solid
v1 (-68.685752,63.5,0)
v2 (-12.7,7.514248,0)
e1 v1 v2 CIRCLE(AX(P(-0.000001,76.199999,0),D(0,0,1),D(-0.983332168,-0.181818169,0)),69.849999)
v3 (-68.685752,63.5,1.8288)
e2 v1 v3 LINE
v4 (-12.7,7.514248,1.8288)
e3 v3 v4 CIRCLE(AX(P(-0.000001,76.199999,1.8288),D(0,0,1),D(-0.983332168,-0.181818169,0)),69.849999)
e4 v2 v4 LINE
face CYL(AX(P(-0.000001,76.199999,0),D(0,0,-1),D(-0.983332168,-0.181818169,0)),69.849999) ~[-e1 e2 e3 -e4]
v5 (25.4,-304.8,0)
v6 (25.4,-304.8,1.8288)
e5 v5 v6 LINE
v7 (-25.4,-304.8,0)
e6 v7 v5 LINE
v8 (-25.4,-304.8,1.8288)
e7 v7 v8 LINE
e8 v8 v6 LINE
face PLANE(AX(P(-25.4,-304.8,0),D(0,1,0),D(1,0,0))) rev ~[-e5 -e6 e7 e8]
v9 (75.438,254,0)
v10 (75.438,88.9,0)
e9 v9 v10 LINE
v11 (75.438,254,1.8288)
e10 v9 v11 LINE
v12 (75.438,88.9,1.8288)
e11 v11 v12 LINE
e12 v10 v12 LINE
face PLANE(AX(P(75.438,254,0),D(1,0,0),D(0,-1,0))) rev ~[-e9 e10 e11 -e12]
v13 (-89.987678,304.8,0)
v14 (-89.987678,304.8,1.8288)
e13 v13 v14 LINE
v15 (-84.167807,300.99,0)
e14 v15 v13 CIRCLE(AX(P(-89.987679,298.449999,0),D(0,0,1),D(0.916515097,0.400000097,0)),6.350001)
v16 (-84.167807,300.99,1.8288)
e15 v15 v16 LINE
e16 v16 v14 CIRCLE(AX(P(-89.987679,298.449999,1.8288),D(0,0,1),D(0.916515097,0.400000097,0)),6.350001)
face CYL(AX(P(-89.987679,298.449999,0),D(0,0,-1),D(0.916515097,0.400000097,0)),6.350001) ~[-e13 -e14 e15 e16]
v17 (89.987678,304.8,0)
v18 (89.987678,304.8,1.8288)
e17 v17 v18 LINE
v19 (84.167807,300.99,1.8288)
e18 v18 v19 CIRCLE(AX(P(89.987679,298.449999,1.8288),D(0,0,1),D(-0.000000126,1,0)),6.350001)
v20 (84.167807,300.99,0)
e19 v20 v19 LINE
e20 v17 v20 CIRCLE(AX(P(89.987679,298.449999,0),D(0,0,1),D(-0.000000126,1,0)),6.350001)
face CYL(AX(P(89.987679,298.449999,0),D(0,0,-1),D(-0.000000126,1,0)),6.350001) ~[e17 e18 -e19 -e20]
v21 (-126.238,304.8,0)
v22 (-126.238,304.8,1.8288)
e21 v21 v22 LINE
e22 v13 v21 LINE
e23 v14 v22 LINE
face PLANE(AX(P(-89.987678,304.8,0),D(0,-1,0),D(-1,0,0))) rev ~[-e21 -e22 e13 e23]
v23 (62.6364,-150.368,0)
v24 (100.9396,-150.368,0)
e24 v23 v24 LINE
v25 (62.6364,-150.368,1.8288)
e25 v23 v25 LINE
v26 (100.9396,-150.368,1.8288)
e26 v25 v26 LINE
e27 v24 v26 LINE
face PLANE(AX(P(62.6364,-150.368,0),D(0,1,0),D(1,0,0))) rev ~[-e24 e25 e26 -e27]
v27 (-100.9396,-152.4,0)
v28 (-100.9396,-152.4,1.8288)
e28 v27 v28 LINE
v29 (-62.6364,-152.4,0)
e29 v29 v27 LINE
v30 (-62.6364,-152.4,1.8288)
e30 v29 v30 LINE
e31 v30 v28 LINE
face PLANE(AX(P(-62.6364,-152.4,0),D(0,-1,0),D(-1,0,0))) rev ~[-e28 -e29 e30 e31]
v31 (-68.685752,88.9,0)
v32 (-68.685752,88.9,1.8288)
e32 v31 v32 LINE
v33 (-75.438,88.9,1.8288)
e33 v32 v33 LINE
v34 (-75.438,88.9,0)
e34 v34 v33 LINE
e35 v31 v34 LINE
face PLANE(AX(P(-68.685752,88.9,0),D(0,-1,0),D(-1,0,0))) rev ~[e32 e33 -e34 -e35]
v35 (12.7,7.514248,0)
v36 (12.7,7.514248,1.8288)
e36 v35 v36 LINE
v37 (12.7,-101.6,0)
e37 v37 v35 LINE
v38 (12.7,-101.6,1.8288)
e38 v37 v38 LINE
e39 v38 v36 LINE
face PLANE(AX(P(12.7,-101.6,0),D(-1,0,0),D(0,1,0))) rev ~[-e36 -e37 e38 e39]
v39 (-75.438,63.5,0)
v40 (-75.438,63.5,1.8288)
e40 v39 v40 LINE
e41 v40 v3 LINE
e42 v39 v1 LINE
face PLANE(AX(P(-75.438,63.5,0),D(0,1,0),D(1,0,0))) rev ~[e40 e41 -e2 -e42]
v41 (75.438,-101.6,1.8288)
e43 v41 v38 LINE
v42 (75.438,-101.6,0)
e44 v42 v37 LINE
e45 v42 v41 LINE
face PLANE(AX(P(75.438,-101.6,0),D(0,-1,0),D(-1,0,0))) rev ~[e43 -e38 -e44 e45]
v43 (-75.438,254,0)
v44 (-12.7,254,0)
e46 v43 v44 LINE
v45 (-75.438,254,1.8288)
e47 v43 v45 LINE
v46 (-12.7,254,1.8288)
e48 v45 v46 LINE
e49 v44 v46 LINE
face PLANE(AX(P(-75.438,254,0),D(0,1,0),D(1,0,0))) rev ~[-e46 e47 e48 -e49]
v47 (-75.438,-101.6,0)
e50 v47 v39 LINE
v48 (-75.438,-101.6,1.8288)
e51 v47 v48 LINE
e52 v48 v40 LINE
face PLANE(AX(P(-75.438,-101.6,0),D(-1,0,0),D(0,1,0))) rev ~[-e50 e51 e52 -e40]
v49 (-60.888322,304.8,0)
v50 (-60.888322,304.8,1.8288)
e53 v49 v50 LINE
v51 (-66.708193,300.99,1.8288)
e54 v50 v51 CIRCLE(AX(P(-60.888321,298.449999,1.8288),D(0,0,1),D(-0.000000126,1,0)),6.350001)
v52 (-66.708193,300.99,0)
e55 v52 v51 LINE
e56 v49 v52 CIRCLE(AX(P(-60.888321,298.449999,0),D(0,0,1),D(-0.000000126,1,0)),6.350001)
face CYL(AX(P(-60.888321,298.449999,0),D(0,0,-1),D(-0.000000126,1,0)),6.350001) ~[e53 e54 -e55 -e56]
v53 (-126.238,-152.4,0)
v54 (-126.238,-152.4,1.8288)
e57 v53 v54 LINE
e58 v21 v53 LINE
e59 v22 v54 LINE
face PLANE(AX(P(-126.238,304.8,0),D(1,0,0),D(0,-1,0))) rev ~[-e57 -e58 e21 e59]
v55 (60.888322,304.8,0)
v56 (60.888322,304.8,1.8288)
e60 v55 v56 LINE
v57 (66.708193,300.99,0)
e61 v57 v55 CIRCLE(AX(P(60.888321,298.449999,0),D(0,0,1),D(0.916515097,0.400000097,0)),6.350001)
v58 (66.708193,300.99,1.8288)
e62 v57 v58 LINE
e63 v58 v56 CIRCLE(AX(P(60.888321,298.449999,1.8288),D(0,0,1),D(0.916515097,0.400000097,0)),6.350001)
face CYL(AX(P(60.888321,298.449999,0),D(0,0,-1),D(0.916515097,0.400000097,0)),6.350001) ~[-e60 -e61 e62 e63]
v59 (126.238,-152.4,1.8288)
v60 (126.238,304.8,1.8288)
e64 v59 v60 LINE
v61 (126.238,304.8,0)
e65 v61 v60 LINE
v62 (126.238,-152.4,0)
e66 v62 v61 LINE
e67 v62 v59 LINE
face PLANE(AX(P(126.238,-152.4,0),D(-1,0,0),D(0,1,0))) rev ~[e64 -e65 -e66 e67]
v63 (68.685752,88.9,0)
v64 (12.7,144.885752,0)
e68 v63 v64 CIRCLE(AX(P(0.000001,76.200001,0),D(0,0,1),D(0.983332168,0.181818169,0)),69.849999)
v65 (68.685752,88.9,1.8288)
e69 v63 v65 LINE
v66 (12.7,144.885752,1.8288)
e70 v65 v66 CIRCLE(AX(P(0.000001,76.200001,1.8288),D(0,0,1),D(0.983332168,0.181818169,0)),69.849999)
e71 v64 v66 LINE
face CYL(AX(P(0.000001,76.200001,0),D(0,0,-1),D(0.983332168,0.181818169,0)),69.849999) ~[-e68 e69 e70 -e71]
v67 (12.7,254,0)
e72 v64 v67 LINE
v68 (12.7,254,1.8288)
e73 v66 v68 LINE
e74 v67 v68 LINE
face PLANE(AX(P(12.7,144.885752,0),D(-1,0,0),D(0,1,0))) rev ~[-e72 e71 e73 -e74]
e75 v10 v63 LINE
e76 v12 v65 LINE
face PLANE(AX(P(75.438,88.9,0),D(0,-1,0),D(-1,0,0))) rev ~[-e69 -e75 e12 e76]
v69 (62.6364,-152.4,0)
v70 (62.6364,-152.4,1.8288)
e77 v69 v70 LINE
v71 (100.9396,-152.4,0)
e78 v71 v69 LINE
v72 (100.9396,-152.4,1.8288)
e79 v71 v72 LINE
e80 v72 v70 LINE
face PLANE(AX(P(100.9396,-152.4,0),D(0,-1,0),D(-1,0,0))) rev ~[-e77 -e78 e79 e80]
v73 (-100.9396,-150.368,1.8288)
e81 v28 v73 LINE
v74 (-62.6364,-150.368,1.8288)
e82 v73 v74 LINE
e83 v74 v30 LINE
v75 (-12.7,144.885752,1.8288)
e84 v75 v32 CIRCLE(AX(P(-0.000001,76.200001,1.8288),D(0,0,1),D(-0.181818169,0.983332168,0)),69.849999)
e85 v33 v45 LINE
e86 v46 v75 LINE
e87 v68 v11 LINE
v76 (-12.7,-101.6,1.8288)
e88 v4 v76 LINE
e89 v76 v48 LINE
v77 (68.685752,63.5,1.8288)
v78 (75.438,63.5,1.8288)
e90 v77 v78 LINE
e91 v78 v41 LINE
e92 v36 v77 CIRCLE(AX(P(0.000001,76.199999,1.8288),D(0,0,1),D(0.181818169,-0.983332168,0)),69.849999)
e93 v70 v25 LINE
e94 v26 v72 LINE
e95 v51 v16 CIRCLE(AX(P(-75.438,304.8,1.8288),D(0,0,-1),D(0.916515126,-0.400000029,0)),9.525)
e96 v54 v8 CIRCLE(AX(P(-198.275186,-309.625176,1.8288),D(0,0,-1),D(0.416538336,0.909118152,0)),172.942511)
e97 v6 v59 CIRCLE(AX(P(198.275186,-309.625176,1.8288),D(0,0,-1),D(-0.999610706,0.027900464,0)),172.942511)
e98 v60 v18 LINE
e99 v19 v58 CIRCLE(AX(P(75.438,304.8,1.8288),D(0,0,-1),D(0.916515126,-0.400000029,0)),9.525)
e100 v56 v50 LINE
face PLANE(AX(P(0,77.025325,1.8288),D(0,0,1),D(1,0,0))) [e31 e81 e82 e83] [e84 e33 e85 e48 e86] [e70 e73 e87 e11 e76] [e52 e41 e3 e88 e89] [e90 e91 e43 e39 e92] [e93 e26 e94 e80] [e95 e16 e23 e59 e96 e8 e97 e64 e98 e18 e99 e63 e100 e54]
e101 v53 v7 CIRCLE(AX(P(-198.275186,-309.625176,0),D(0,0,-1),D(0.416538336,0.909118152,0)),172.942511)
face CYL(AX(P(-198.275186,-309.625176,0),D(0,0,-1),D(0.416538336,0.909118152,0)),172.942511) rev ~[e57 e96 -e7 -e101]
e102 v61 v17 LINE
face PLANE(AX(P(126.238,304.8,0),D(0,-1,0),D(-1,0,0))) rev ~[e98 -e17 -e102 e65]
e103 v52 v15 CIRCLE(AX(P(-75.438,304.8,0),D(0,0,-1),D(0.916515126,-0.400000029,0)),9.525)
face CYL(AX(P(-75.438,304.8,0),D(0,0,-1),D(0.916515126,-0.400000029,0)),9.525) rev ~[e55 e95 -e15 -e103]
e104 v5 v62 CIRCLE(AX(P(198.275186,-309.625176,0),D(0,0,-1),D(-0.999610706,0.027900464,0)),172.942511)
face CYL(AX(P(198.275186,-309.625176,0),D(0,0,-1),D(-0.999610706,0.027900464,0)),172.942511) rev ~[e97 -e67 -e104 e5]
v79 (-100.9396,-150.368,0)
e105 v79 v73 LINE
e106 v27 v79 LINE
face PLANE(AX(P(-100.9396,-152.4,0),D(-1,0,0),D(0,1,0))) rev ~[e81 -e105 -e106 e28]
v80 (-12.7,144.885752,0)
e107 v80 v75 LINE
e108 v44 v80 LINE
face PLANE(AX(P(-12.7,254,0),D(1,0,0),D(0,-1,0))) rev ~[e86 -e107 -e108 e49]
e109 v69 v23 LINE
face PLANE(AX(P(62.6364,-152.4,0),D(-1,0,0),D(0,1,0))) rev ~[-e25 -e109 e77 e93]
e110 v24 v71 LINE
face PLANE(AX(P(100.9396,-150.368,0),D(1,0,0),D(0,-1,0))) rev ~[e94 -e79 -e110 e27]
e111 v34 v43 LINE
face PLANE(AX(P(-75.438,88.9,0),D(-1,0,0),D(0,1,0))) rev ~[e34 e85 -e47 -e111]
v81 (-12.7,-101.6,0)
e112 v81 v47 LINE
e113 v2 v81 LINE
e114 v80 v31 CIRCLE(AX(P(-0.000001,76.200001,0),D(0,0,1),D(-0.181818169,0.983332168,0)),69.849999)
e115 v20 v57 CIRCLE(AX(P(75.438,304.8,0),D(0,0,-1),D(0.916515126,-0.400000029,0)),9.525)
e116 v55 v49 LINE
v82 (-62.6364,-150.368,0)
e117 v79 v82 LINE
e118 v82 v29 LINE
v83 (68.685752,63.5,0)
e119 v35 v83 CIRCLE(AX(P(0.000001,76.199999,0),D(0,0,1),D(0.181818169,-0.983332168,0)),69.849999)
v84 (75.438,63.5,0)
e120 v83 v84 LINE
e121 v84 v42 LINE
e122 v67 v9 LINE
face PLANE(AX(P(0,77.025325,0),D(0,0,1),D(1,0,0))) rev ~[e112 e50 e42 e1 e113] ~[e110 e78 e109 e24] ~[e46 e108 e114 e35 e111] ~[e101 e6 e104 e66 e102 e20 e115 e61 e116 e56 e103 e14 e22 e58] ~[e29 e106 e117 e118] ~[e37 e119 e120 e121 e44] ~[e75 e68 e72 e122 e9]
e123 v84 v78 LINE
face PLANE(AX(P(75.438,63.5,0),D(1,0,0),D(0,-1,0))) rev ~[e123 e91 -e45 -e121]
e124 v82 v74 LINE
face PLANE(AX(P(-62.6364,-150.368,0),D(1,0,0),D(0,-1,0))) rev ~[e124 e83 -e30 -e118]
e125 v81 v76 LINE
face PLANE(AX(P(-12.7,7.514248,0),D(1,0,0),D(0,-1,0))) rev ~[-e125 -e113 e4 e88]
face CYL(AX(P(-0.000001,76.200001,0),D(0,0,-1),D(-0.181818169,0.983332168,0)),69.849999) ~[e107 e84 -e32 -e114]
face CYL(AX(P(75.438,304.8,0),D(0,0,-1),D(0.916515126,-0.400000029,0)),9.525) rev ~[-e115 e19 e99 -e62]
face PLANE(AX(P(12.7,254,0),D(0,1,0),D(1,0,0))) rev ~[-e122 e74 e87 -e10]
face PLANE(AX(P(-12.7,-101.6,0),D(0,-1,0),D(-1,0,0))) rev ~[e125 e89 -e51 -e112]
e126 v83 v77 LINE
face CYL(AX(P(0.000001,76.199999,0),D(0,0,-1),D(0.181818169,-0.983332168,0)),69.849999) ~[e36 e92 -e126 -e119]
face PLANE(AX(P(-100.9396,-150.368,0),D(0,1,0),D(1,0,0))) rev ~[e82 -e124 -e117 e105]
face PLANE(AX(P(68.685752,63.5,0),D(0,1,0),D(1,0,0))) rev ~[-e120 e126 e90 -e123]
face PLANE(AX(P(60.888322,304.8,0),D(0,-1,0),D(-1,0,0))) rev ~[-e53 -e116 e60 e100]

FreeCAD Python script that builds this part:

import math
import FreeCAD as App
import Part
import Sketcher

V = App.Vector
Q = App.Units.Quantity

doc = App.newDocument("Part")
params = doc.addObject("Spreadsheet::Sheet", "Params")
for row, (alias, value) in enumerate([
    ("sketch1_width", "2 in"),
    ("sketch1_height", "18 in"),
    ("sketch1_radius", "0.25 in"),
    ("sketch1_radius2", "2.75 in"),
    ("sketch1_height2", "6.5 in"),
    ("pad1_length", "0.072 in"),
], start=1):
    params.set(f"A{row}", alias)
    params.set(f"B{row}", "=" + value)
    params.setAlias(f"B{row}", alias)

body = doc.addObject("PartDesign::Body", "Body")

# Sketch on XY plane
sketch1 = body.newObject("Sketcher::SketchObject", "Sketch")
sketch1.AttachmentSupport = (doc.getObject("XY_Plane"), [""])
sketch1.MapMode = "FlatFace"
sketch1.addGeometry([
    Part.LineSegment(V(-90, 304.8, 0), V(-126.2, 304.8, 0)),  # 0
    Part.LineSegment(V(-126.2, 304.8, 0), V(-126.2, -152.4, 0)),  # 1
    Part.ArcOfCircle(Part.Circle(V(-198.3, -309.6, 0), V(0, 0, 1), 172.9), math.radians(2), math.radians(65)),  # 2
    Part.LineSegment(V(-25.4, -304.8, 0), V(25.4, -304.8, 0)),  # 3
    Part.ArcOfCircle(Part.Circle(V(198.3, -309.6, 0), V(0, 0, 1), 172.9), math.radians(115), math.radians(178)),  # 4
    Part.LineSegment(V(126.2, -152.4, 0), V(126.2, 304.8, 0)),  # 5
    Part.LineSegment(V(126.2, 304.8, 0), V(90, 304.8, 0)),  # 6
    Part.ArcOfCircle(Part.Circle(V(90, 298.4, 0), V(0, 0, 1), 6.4), math.radians(90), math.radians(156)),  # 7
    Part.ArcOfCircle(Part.Circle(V(75.4, 304.8, 0), V(0, 0, 1), 9.5), math.radians(-156), math.radians(-24)),  # 8
    Part.ArcOfCircle(Part.Circle(V(60.9, 298.4, 0), V(0, 0, 1), 6.4), math.radians(24), math.radians(90)),  # 9
    Part.LineSegment(V(60.9, 304.8, 0), V(-60.9, 304.8, 0)),  # 10
    Part.ArcOfCircle(Part.Circle(V(-60.9, 298.4, 0), V(0, 0, 1), 6.4), math.radians(90), math.radians(156)),  # 11
    Part.ArcOfCircle(Part.Circle(V(-75.4, 304.8, 0), V(0, 0, 1), 9.5), math.radians(-156), math.radians(-24)),  # 12
    Part.ArcOfCircle(Part.Circle(V(-90, 298.4, 0), V(0, 0, 1), 6.4), math.radians(24), math.radians(90)),  # 13
    Part.LineSegment(V(-100.9, -152.4, 0), V(-100.9, -150.4, 0)),  # 14
    Part.LineSegment(V(-100.9, -150.4, 0), V(-62.6, -150.4, 0)),  # 15
    Part.LineSegment(V(-62.6, -150.4, 0), V(-62.6, -152.4, 0)),  # 16
    Part.LineSegment(V(-62.6, -152.4, 0), V(-100.9, -152.4, 0)),  # 17
    Part.LineSegment(V(62.6, -152.4, 0), V(62.6, -150.4, 0)),  # 18
    Part.LineSegment(V(62.6, -150.4, 0), V(100.9, -150.4, 0)),  # 19
    Part.LineSegment(V(100.9, -150.4, 0), V(100.9, -152.4, 0)),  # 20
    Part.LineSegment(V(100.9, -152.4, 0), V(62.6, -152.4, 0)),  # 21
    Part.LineSegment(V(-12.7, 7.5, 0), V(-12.7, -101.6, 0)),  # 22
    Part.LineSegment(V(-12.7, -101.6, 0), V(-75.4, -101.6, 0)),  # 23
    Part.LineSegment(V(-75.4, -101.6, 0), V(-75.4, 63.5, 0)),  # 24
    Part.LineSegment(V(-75.4, 63.5, 0), V(-68.7, 63.5, 0)),  # 25
    Part.ArcOfCircle(Part.Circle(V(0, 76.2, 0), V(0, 0, 1), 69.8), math.radians(-170), math.radians(-100)),  # 26
    Part.LineSegment(V(75.4, -101.6, 0), V(12.7, -101.6, 0)),  # 27
    Part.LineSegment(V(12.7, -101.6, 0), V(12.7, 7.5, 0)),  # 28
    Part.ArcOfCircle(Part.Circle(V(0, 76.2, 0), V(0, 0, 1), 69.8), math.radians(-80), math.radians(-10)),  # 29
    Part.LineSegment(V(68.7, 63.5, 0), V(75.4, 63.5, 0)),  # 30
    Part.LineSegment(V(75.4, 63.5, 0), V(75.4, -101.6, 0)),  # 31
    Part.LineSegment(V(-68.7, 88.9, 0), V(-75.4, 88.9, 0)),  # 32
    Part.LineSegment(V(-75.4, 88.9, 0), V(-75.4, 254, 0)),  # 33
    Part.LineSegment(V(-75.4, 254, 0), V(-12.7, 254, 0)),  # 34
    Part.LineSegment(V(-12.7, 254, 0), V(-12.7, 144.9, 0)),  # 35
    Part.ArcOfCircle(Part.Circle(V(0, 76.2, 0), V(0, 0, 1), 69.8), math.radians(100), math.radians(170)),  # 36
    Part.LineSegment(V(12.7, 144.9, 0), V(12.7, 254, 0)),  # 37
    Part.LineSegment(V(12.7, 254, 0), V(75.4, 254, 0)),  # 38
    Part.LineSegment(V(75.4, 254, 0), V(75.4, 88.9, 0)),  # 39
    Part.LineSegment(V(75.4, 88.9, 0), V(68.7, 88.9, 0)),  # 40
    Part.ArcOfCircle(Part.Circle(V(0, 76.2, 0), V(0, 0, 1), 69.8), math.radians(10), math.radians(80)),  # 41
], False)
sketch1.addConstraint([
    Sketcher.Constraint("Coincident", 0, 2, 1, 1),
    Sketcher.Constraint("Coincident", 1, 2, 2, 2),
    Sketcher.Constraint("Coincident", 2, 1, 3, 1),
    Sketcher.Constraint("Coincident", 3, 2, 4, 2),
    Sketcher.Constraint("Coincident", 4, 1, 5, 1),
    Sketcher.Constraint("Coincident", 5, 2, 6, 1),
    Sketcher.Constraint("Tangent", 6, 2, 7, 1),
    Sketcher.Constraint("Tangent", 7, 2, 8, 2),
    Sketcher.Constraint("Tangent", 8, 1, 9, 1),
    Sketcher.Constraint("Tangent", 9, 2, 10, 1),
    Sketcher.Constraint("Tangent", 10, 2, 11, 1),
    Sketcher.Constraint("Tangent", 11, 2, 12, 2),
    Sketcher.Constraint("Tangent", 12, 1, 13, 1),
    Sketcher.Constraint("Tangent", 13, 2, 0, 1),
    Sketcher.Constraint("Coincident", 14, 2, 15, 1),
    Sketcher.Constraint("Coincident", 15, 2, 16, 1),
    Sketcher.Constraint("Coincident", 16, 2, 17, 1),
    Sketcher.Constraint("Coincident", 17, 2, 14, 1),
    Sketcher.Constraint("Coincident", 18, 2, 19, 1),
    Sketcher.Constraint("Coincident", 19, 2, 20, 1),
    Sketcher.Constraint("Coincident", 20, 2, 21, 1),
    Sketcher.Constraint("Coincident", 21, 2, 18, 1),
    Sketcher.Constraint("Coincident", 22, 2, 23, 1),
    Sketcher.Constraint("Coincident", 23, 2, 24, 1),
    Sketcher.Constraint("Coincident", 24, 2, 25, 1),
    Sketcher.Constraint("Coincident", 25, 2, 26, 1),
    Sketcher.Constraint("Coincident", 26, 2, 22, 1),
    Sketcher.Constraint("Coincident", 27, 2, 28, 1),
    Sketcher.Constraint("Coincident", 28, 2, 29, 1),
    Sketcher.Constraint("Coincident", 29, 2, 30, 1),
    Sketcher.Constraint("Coincident", 30, 2, 31, 1),
    Sketcher.Constraint("Coincident", 31, 2, 27, 1),
    Sketcher.Constraint("Coincident", 32, 2, 33, 1),
    Sketcher.Constraint("Coincident", 33, 2, 34, 1),
    Sketcher.Constraint("Coincident", 34, 2, 35, 1),
    Sketcher.Constraint("Coincident", 35, 2, 36, 1),
    Sketcher.Constraint("Coincident", 36, 2, 32, 1),
    Sketcher.Constraint("Coincident", 37, 2, 38, 1),
    Sketcher.Constraint("Coincident", 38, 2, 39, 1),
    Sketcher.Constraint("Coincident", 39, 2, 40, 1),
    Sketcher.Constraint("Coincident", 40, 2, 41, 1),
    Sketcher.Constraint("Coincident", 41, 2, 37, 1),
    Sketcher.Constraint("Horizontal", 0),
    Sketcher.Constraint("Vertical", 1),
    Sketcher.Constraint("Horizontal", 3),
    Sketcher.Constraint("Vertical", 5),
    Sketcher.Constraint("Horizontal", 6),
    Sketcher.Constraint("Horizontal", 10),
    Sketcher.Constraint("Vertical", 14),
    Sketcher.Constraint("Horizontal", 15),
    Sketcher.Constraint("Vertical", 16),
    Sketcher.Constraint("Horizontal", 17),
    Sketcher.Constraint("Vertical", 18),
    Sketcher.Constraint("Horizontal", 19),
    Sketcher.Constraint("Vertical", 20),
    Sketcher.Constraint("Horizontal", 21),
    Sketcher.Constraint("Vertical", 22),
    Sketcher.Constraint("Horizontal", 23),
    Sketcher.Constraint("Vertical", 24),
    Sketcher.Constraint("Horizontal", 25),
    Sketcher.Constraint("Horizontal", 27),
    Sketcher.Constraint("Vertical", 28),
    Sketcher.Constraint("Horizontal", 30),
    Sketcher.Constraint("Vertical", 31),
    Sketcher.Constraint("Horizontal", 32),
    Sketcher.Constraint("Vertical", 33),
    Sketcher.Constraint("Horizontal", 34),
    Sketcher.Constraint("Vertical", 35),
    Sketcher.Constraint("Vertical", 37),
    Sketcher.Constraint("Horizontal", 38),
    Sketcher.Constraint("Vertical", 39),
    Sketcher.Constraint("Horizontal", 40),
    Sketcher.Constraint("Coincident", 29, 3, 26, 3),
    Sketcher.Constraint("Coincident", 36, 3, 26, 3),
    Sketcher.Constraint("Coincident", 41, 3, 26, 3),
    Sketcher.Constraint("Equal", 2, 4),
    Sketcher.Constraint("Equal", 7, 9),
    Sketcher.Constraint("Equal", 9, 11),
    Sketcher.Constraint("Equal", 8, 12),
    Sketcher.Constraint("Equal", 11, 13),
    Sketcher.Constraint("Equal", 26, 29),
    Sketcher.Constraint("Equal", 29, 36),
    Sketcher.Constraint("Equal", 36, 41),
    Sketcher.Constraint("Symmetric", 2, 3, 4, 3, -2),
    Sketcher.Constraint("Symmetric", 8, 3, 12, 3, -2),
    Sketcher.Constraint("Symmetric", 0, 2, 5, 2, -2),
    Sketcher.Constraint("Symmetric", 15, 2, 18, 2, -2),
    Sketcher.Constraint("Symmetric", 17, 2, 20, 2, -2),
    Sketcher.Constraint("Symmetric", 22, 2, 27, 2, -2),
    Sketcher.Constraint("Symmetric", 25, 2, 29, 2, -2),
    Sketcher.Constraint("Symmetric", 34, 2, 37, 2, -2),
    Sketcher.Constraint("Symmetric", 32, 2, 39, 2, -2),
    Sketcher.Constraint("Horizontal", 7, 3, 9, 3),
    Sketcher.Constraint("Horizontal", 12, 3, 0, 2),
    Sketcher.Constraint("Horizontal", 4, 1, 16, 2),
    Sketcher.Constraint("Vertical", 12, 3, 23, 2),
    Sketcher.Constraint("Vertical", 8, 3, 30, 2),
    Sketcher.Constraint("Vertical", 24, 2, 32, 2),
    Sketcher.Constraint("Vertical", 26, 2, 34, 2),
    Sketcher.Constraint("Vertical", 25, 2, 36, 2),
    Sketcher.Constraint("Equal", 31, 33),
    Sketcher.Constraint("DistanceX", 3, 1, 3, 2, Q("2 in")),
    Sketcher.Constraint("DistanceY", 1, 2, 1, 1, Q("18 in")),
    Sketcher.Constraint("Radius", 7, Q("0.25 in")),
    Sketcher.Constraint("Radius", 26, Q("2.75 in")),
    Sketcher.Constraint("DistanceY", 24, 1, 24, 2, Q("6.5 in")),
    Sketcher.Constraint("DistanceY", -1, 1, 8, 3, Q("12 in")),
    Sketcher.Constraint("DistanceY", -1, 1, 26, 3, Q("3 in")),
    Sketcher.Constraint("DistanceY", 2, 1, -1, 1, Q("12 in")),
    Sketcher.Constraint("DistanceY", 22, 2, -1, 1, Q("4 in")),
    Sketcher.Constraint("Radius", 8, Q("0.375 in")),
    Sketcher.Constraint("DistanceX", 0, 2, 12, 3, Q("2 in")),
    Sketcher.Constraint("DistanceX", 22, 2, 27, 2, Q("1 in")),
    Sketcher.Constraint("DistanceX", 23, 2, 23, 1, Q("2.47 in")),
    Sketcher.Constraint("DistanceY", 14, 1, 14, 2, Q("0.08 in")),
    Sketcher.Constraint("DistanceX", 15, 1, 15, 2, Q("1.508 in")),
    Sketcher.Constraint("DistanceX", 14, 2, 18, 2, Q("6.44 in")),
    Sketcher.Constraint("Radius", 2, 172.942511),
])
sketch1.setExpression("Constraints[101]", "Params.sketch1_width")
sketch1.setExpression("Constraints[102]", "Params.sketch1_height")
sketch1.setExpression("Constraints[103]", "Params.sketch1_radius")
sketch1.setExpression("Constraints[104]", "Params.sketch1_radius2")
sketch1.setExpression("Constraints[105]", "Params.sketch1_height2")
pad1 = body.newObject("PartDesign::Pad", "Pad")
pad1.Profile = sketch1
pad1.setExpression("Length", "Params.pad1_length")

doc.recompute()
